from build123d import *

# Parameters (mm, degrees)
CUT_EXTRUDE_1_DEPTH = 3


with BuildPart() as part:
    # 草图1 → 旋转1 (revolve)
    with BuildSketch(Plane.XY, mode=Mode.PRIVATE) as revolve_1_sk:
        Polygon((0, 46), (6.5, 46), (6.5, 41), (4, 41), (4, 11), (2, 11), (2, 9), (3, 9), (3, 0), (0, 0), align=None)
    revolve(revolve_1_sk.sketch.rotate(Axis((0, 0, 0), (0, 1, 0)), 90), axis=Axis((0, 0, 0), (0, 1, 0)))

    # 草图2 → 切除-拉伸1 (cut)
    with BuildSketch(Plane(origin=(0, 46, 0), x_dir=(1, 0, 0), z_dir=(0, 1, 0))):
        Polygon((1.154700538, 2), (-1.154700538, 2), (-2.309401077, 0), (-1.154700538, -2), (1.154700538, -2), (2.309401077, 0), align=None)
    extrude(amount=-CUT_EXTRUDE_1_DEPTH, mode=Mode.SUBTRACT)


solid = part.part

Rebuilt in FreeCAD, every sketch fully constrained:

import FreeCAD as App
import Part
import Sketcher
Q = App.Units.Quantity


def add_polygon(sketch, points):
    """Adds a closed chain of lines whose ends are joined by coincident constraints."""
    first, n = sketch.GeometryCount, len(points)
    for a, b in zip(points, points[1:] + points[:1]):
        sketch.addGeometry(Part.LineSegment(App.Vector(*a, 0), App.Vector(*b, 0)), False)
    for i in range(n):
        sketch.addConstraint(Sketcher.Constraint("Coincident", first + i, 2, first + (i + 1) % n, 1))

doc = App.newDocument("Part")
body = doc.addObject("PartDesign::Body", "Body")

# Sketch on XY plane
sketch1 = body.newObject("Sketcher::SketchObject", "Sketch")
sketch1.AttachmentSupport = (doc.getObject("XY_Plane"), [""])
sketch1.MapMode = "FlatFace"
add_polygon(sketch1, [(6.5, 46), (0, 46), (0, 0), (3, 0), (3, 9), (2, 9), (2, 11), (4, 11), (4, 41), (6.5, 41)])  # lines 0-9
sketch1.addConstraint(Sketcher.Constraint("Horizontal", 0))
sketch1.addConstraint(Sketcher.Constraint("Vertical", 1))
sketch1.addConstraint(Sketcher.Constraint("Horizontal", 2))
sketch1.addConstraint(Sketcher.Constraint("Vertical", 3))
sketch1.addConstraint(Sketcher.Constraint("Horizontal", 4))
sketch1.addConstraint(Sketcher.Constraint("Vertical", 5))
sketch1.addConstraint(Sketcher.Constraint("Horizontal", 6))
sketch1.addConstraint(Sketcher.Constraint("Vertical", 7))
sketch1.addConstraint(Sketcher.Constraint("Horizontal", 8))
sketch1.addConstraint(Sketcher.Constraint("Vertical", 9))
sketch1.addConstraint(Sketcher.Constraint("Coincident", 1, 2, -1, 1))
sketch1.addConstraint(Sketcher.Constraint("Equal", 6, 5))
sketch1.addConstraint(Sketcher.Constraint("DistanceX", 2, 1, 2, 2, 3.0))
sketch1.addConstraint(Sketcher.Constraint("DistanceX", 4, 2, 4, 1, 1.0))
sketch1.addConstraint(Sketcher.Constraint("DistanceX", 6, 1, 6, 2, 2.0))
sketch1.addConstraint(Sketcher.Constraint("DistanceY", 1, 2, 1, 1, 46.0))
sketch1.addConstraint(Sketcher.Constraint("DistanceY", 3, 1, 3, 2, 9.0))
sketch1.addConstraint(Sketcher.Constraint("DistanceY", 7, 1, 7, 2, 30.0))
sketch1.addConstraint(Sketcher.Constraint("DistanceX", 0, 2, 0, 1, 6.5))
revolution = body.newObject("PartDesign::Revolution", "Revolution")
revolution.Profile = sketch1
revolution.ReferenceAxis = (sketch1, ["V_Axis"])
revolution.Angle = 360

# Sketch on XZ plane
sketch2 = body.newObject("Sketcher::SketchObject", "Sketch001")
sketch2.AttachmentSupport = (doc.getObject("XZ_Plane"), [""])
sketch2.MapMode = "FlatFace"
sketch2.AttachmentOffset = App.Placement(App.Vector(0, 0, -46), App.Rotation())
add_polygon(sketch2, [(1.154701, -2), (-1.154701, -2), (-2.309401, 0), (-1.154701, 2), (1.154701, 2), (2.309401, 0)])  # lines 0-5
sketch2.addConstraint(Sketcher.Constraint("Horizontal", 0))
sketch2.addConstraint(Sketcher.Constraint("Horizontal", 3))
sketch2.addConstraint(Sketcher.Constraint("Symmetric", 0, 2, 3, 2, -1, 1))
sketch2.addConstraint(Sketcher.Constraint("Symmetric", 1, 2, 4, 2, -1, 1))
sketch2.addConstraint(Sketcher.Constraint("PointOnObject", 1, 2, -1))
sketch2.addConstraint(Sketcher.Constraint("Parallel", 2, 5))
sketch2.addConstraint(Sketcher.Constraint("Vertical", 0, 2, 2, 2))
sketch2.addConstraint(Sketcher.Constraint("Angle", 1, Q("120 deg")))
sketch2.addConstraint(Sketcher.Constraint("DistanceY", 0, 2, -1, 1, 2.0))
sketch2.addConstraint(Sketcher.Constraint("DistanceX", 0, 2, 0, 1, 2.309401))
pocket1 = body.newObject("PartDesign::Pocket", "Pocket")
pocket1.Profile = sketch2
pocket1.Length = 3
pocket1.Reversed = True

doc.recompute()
